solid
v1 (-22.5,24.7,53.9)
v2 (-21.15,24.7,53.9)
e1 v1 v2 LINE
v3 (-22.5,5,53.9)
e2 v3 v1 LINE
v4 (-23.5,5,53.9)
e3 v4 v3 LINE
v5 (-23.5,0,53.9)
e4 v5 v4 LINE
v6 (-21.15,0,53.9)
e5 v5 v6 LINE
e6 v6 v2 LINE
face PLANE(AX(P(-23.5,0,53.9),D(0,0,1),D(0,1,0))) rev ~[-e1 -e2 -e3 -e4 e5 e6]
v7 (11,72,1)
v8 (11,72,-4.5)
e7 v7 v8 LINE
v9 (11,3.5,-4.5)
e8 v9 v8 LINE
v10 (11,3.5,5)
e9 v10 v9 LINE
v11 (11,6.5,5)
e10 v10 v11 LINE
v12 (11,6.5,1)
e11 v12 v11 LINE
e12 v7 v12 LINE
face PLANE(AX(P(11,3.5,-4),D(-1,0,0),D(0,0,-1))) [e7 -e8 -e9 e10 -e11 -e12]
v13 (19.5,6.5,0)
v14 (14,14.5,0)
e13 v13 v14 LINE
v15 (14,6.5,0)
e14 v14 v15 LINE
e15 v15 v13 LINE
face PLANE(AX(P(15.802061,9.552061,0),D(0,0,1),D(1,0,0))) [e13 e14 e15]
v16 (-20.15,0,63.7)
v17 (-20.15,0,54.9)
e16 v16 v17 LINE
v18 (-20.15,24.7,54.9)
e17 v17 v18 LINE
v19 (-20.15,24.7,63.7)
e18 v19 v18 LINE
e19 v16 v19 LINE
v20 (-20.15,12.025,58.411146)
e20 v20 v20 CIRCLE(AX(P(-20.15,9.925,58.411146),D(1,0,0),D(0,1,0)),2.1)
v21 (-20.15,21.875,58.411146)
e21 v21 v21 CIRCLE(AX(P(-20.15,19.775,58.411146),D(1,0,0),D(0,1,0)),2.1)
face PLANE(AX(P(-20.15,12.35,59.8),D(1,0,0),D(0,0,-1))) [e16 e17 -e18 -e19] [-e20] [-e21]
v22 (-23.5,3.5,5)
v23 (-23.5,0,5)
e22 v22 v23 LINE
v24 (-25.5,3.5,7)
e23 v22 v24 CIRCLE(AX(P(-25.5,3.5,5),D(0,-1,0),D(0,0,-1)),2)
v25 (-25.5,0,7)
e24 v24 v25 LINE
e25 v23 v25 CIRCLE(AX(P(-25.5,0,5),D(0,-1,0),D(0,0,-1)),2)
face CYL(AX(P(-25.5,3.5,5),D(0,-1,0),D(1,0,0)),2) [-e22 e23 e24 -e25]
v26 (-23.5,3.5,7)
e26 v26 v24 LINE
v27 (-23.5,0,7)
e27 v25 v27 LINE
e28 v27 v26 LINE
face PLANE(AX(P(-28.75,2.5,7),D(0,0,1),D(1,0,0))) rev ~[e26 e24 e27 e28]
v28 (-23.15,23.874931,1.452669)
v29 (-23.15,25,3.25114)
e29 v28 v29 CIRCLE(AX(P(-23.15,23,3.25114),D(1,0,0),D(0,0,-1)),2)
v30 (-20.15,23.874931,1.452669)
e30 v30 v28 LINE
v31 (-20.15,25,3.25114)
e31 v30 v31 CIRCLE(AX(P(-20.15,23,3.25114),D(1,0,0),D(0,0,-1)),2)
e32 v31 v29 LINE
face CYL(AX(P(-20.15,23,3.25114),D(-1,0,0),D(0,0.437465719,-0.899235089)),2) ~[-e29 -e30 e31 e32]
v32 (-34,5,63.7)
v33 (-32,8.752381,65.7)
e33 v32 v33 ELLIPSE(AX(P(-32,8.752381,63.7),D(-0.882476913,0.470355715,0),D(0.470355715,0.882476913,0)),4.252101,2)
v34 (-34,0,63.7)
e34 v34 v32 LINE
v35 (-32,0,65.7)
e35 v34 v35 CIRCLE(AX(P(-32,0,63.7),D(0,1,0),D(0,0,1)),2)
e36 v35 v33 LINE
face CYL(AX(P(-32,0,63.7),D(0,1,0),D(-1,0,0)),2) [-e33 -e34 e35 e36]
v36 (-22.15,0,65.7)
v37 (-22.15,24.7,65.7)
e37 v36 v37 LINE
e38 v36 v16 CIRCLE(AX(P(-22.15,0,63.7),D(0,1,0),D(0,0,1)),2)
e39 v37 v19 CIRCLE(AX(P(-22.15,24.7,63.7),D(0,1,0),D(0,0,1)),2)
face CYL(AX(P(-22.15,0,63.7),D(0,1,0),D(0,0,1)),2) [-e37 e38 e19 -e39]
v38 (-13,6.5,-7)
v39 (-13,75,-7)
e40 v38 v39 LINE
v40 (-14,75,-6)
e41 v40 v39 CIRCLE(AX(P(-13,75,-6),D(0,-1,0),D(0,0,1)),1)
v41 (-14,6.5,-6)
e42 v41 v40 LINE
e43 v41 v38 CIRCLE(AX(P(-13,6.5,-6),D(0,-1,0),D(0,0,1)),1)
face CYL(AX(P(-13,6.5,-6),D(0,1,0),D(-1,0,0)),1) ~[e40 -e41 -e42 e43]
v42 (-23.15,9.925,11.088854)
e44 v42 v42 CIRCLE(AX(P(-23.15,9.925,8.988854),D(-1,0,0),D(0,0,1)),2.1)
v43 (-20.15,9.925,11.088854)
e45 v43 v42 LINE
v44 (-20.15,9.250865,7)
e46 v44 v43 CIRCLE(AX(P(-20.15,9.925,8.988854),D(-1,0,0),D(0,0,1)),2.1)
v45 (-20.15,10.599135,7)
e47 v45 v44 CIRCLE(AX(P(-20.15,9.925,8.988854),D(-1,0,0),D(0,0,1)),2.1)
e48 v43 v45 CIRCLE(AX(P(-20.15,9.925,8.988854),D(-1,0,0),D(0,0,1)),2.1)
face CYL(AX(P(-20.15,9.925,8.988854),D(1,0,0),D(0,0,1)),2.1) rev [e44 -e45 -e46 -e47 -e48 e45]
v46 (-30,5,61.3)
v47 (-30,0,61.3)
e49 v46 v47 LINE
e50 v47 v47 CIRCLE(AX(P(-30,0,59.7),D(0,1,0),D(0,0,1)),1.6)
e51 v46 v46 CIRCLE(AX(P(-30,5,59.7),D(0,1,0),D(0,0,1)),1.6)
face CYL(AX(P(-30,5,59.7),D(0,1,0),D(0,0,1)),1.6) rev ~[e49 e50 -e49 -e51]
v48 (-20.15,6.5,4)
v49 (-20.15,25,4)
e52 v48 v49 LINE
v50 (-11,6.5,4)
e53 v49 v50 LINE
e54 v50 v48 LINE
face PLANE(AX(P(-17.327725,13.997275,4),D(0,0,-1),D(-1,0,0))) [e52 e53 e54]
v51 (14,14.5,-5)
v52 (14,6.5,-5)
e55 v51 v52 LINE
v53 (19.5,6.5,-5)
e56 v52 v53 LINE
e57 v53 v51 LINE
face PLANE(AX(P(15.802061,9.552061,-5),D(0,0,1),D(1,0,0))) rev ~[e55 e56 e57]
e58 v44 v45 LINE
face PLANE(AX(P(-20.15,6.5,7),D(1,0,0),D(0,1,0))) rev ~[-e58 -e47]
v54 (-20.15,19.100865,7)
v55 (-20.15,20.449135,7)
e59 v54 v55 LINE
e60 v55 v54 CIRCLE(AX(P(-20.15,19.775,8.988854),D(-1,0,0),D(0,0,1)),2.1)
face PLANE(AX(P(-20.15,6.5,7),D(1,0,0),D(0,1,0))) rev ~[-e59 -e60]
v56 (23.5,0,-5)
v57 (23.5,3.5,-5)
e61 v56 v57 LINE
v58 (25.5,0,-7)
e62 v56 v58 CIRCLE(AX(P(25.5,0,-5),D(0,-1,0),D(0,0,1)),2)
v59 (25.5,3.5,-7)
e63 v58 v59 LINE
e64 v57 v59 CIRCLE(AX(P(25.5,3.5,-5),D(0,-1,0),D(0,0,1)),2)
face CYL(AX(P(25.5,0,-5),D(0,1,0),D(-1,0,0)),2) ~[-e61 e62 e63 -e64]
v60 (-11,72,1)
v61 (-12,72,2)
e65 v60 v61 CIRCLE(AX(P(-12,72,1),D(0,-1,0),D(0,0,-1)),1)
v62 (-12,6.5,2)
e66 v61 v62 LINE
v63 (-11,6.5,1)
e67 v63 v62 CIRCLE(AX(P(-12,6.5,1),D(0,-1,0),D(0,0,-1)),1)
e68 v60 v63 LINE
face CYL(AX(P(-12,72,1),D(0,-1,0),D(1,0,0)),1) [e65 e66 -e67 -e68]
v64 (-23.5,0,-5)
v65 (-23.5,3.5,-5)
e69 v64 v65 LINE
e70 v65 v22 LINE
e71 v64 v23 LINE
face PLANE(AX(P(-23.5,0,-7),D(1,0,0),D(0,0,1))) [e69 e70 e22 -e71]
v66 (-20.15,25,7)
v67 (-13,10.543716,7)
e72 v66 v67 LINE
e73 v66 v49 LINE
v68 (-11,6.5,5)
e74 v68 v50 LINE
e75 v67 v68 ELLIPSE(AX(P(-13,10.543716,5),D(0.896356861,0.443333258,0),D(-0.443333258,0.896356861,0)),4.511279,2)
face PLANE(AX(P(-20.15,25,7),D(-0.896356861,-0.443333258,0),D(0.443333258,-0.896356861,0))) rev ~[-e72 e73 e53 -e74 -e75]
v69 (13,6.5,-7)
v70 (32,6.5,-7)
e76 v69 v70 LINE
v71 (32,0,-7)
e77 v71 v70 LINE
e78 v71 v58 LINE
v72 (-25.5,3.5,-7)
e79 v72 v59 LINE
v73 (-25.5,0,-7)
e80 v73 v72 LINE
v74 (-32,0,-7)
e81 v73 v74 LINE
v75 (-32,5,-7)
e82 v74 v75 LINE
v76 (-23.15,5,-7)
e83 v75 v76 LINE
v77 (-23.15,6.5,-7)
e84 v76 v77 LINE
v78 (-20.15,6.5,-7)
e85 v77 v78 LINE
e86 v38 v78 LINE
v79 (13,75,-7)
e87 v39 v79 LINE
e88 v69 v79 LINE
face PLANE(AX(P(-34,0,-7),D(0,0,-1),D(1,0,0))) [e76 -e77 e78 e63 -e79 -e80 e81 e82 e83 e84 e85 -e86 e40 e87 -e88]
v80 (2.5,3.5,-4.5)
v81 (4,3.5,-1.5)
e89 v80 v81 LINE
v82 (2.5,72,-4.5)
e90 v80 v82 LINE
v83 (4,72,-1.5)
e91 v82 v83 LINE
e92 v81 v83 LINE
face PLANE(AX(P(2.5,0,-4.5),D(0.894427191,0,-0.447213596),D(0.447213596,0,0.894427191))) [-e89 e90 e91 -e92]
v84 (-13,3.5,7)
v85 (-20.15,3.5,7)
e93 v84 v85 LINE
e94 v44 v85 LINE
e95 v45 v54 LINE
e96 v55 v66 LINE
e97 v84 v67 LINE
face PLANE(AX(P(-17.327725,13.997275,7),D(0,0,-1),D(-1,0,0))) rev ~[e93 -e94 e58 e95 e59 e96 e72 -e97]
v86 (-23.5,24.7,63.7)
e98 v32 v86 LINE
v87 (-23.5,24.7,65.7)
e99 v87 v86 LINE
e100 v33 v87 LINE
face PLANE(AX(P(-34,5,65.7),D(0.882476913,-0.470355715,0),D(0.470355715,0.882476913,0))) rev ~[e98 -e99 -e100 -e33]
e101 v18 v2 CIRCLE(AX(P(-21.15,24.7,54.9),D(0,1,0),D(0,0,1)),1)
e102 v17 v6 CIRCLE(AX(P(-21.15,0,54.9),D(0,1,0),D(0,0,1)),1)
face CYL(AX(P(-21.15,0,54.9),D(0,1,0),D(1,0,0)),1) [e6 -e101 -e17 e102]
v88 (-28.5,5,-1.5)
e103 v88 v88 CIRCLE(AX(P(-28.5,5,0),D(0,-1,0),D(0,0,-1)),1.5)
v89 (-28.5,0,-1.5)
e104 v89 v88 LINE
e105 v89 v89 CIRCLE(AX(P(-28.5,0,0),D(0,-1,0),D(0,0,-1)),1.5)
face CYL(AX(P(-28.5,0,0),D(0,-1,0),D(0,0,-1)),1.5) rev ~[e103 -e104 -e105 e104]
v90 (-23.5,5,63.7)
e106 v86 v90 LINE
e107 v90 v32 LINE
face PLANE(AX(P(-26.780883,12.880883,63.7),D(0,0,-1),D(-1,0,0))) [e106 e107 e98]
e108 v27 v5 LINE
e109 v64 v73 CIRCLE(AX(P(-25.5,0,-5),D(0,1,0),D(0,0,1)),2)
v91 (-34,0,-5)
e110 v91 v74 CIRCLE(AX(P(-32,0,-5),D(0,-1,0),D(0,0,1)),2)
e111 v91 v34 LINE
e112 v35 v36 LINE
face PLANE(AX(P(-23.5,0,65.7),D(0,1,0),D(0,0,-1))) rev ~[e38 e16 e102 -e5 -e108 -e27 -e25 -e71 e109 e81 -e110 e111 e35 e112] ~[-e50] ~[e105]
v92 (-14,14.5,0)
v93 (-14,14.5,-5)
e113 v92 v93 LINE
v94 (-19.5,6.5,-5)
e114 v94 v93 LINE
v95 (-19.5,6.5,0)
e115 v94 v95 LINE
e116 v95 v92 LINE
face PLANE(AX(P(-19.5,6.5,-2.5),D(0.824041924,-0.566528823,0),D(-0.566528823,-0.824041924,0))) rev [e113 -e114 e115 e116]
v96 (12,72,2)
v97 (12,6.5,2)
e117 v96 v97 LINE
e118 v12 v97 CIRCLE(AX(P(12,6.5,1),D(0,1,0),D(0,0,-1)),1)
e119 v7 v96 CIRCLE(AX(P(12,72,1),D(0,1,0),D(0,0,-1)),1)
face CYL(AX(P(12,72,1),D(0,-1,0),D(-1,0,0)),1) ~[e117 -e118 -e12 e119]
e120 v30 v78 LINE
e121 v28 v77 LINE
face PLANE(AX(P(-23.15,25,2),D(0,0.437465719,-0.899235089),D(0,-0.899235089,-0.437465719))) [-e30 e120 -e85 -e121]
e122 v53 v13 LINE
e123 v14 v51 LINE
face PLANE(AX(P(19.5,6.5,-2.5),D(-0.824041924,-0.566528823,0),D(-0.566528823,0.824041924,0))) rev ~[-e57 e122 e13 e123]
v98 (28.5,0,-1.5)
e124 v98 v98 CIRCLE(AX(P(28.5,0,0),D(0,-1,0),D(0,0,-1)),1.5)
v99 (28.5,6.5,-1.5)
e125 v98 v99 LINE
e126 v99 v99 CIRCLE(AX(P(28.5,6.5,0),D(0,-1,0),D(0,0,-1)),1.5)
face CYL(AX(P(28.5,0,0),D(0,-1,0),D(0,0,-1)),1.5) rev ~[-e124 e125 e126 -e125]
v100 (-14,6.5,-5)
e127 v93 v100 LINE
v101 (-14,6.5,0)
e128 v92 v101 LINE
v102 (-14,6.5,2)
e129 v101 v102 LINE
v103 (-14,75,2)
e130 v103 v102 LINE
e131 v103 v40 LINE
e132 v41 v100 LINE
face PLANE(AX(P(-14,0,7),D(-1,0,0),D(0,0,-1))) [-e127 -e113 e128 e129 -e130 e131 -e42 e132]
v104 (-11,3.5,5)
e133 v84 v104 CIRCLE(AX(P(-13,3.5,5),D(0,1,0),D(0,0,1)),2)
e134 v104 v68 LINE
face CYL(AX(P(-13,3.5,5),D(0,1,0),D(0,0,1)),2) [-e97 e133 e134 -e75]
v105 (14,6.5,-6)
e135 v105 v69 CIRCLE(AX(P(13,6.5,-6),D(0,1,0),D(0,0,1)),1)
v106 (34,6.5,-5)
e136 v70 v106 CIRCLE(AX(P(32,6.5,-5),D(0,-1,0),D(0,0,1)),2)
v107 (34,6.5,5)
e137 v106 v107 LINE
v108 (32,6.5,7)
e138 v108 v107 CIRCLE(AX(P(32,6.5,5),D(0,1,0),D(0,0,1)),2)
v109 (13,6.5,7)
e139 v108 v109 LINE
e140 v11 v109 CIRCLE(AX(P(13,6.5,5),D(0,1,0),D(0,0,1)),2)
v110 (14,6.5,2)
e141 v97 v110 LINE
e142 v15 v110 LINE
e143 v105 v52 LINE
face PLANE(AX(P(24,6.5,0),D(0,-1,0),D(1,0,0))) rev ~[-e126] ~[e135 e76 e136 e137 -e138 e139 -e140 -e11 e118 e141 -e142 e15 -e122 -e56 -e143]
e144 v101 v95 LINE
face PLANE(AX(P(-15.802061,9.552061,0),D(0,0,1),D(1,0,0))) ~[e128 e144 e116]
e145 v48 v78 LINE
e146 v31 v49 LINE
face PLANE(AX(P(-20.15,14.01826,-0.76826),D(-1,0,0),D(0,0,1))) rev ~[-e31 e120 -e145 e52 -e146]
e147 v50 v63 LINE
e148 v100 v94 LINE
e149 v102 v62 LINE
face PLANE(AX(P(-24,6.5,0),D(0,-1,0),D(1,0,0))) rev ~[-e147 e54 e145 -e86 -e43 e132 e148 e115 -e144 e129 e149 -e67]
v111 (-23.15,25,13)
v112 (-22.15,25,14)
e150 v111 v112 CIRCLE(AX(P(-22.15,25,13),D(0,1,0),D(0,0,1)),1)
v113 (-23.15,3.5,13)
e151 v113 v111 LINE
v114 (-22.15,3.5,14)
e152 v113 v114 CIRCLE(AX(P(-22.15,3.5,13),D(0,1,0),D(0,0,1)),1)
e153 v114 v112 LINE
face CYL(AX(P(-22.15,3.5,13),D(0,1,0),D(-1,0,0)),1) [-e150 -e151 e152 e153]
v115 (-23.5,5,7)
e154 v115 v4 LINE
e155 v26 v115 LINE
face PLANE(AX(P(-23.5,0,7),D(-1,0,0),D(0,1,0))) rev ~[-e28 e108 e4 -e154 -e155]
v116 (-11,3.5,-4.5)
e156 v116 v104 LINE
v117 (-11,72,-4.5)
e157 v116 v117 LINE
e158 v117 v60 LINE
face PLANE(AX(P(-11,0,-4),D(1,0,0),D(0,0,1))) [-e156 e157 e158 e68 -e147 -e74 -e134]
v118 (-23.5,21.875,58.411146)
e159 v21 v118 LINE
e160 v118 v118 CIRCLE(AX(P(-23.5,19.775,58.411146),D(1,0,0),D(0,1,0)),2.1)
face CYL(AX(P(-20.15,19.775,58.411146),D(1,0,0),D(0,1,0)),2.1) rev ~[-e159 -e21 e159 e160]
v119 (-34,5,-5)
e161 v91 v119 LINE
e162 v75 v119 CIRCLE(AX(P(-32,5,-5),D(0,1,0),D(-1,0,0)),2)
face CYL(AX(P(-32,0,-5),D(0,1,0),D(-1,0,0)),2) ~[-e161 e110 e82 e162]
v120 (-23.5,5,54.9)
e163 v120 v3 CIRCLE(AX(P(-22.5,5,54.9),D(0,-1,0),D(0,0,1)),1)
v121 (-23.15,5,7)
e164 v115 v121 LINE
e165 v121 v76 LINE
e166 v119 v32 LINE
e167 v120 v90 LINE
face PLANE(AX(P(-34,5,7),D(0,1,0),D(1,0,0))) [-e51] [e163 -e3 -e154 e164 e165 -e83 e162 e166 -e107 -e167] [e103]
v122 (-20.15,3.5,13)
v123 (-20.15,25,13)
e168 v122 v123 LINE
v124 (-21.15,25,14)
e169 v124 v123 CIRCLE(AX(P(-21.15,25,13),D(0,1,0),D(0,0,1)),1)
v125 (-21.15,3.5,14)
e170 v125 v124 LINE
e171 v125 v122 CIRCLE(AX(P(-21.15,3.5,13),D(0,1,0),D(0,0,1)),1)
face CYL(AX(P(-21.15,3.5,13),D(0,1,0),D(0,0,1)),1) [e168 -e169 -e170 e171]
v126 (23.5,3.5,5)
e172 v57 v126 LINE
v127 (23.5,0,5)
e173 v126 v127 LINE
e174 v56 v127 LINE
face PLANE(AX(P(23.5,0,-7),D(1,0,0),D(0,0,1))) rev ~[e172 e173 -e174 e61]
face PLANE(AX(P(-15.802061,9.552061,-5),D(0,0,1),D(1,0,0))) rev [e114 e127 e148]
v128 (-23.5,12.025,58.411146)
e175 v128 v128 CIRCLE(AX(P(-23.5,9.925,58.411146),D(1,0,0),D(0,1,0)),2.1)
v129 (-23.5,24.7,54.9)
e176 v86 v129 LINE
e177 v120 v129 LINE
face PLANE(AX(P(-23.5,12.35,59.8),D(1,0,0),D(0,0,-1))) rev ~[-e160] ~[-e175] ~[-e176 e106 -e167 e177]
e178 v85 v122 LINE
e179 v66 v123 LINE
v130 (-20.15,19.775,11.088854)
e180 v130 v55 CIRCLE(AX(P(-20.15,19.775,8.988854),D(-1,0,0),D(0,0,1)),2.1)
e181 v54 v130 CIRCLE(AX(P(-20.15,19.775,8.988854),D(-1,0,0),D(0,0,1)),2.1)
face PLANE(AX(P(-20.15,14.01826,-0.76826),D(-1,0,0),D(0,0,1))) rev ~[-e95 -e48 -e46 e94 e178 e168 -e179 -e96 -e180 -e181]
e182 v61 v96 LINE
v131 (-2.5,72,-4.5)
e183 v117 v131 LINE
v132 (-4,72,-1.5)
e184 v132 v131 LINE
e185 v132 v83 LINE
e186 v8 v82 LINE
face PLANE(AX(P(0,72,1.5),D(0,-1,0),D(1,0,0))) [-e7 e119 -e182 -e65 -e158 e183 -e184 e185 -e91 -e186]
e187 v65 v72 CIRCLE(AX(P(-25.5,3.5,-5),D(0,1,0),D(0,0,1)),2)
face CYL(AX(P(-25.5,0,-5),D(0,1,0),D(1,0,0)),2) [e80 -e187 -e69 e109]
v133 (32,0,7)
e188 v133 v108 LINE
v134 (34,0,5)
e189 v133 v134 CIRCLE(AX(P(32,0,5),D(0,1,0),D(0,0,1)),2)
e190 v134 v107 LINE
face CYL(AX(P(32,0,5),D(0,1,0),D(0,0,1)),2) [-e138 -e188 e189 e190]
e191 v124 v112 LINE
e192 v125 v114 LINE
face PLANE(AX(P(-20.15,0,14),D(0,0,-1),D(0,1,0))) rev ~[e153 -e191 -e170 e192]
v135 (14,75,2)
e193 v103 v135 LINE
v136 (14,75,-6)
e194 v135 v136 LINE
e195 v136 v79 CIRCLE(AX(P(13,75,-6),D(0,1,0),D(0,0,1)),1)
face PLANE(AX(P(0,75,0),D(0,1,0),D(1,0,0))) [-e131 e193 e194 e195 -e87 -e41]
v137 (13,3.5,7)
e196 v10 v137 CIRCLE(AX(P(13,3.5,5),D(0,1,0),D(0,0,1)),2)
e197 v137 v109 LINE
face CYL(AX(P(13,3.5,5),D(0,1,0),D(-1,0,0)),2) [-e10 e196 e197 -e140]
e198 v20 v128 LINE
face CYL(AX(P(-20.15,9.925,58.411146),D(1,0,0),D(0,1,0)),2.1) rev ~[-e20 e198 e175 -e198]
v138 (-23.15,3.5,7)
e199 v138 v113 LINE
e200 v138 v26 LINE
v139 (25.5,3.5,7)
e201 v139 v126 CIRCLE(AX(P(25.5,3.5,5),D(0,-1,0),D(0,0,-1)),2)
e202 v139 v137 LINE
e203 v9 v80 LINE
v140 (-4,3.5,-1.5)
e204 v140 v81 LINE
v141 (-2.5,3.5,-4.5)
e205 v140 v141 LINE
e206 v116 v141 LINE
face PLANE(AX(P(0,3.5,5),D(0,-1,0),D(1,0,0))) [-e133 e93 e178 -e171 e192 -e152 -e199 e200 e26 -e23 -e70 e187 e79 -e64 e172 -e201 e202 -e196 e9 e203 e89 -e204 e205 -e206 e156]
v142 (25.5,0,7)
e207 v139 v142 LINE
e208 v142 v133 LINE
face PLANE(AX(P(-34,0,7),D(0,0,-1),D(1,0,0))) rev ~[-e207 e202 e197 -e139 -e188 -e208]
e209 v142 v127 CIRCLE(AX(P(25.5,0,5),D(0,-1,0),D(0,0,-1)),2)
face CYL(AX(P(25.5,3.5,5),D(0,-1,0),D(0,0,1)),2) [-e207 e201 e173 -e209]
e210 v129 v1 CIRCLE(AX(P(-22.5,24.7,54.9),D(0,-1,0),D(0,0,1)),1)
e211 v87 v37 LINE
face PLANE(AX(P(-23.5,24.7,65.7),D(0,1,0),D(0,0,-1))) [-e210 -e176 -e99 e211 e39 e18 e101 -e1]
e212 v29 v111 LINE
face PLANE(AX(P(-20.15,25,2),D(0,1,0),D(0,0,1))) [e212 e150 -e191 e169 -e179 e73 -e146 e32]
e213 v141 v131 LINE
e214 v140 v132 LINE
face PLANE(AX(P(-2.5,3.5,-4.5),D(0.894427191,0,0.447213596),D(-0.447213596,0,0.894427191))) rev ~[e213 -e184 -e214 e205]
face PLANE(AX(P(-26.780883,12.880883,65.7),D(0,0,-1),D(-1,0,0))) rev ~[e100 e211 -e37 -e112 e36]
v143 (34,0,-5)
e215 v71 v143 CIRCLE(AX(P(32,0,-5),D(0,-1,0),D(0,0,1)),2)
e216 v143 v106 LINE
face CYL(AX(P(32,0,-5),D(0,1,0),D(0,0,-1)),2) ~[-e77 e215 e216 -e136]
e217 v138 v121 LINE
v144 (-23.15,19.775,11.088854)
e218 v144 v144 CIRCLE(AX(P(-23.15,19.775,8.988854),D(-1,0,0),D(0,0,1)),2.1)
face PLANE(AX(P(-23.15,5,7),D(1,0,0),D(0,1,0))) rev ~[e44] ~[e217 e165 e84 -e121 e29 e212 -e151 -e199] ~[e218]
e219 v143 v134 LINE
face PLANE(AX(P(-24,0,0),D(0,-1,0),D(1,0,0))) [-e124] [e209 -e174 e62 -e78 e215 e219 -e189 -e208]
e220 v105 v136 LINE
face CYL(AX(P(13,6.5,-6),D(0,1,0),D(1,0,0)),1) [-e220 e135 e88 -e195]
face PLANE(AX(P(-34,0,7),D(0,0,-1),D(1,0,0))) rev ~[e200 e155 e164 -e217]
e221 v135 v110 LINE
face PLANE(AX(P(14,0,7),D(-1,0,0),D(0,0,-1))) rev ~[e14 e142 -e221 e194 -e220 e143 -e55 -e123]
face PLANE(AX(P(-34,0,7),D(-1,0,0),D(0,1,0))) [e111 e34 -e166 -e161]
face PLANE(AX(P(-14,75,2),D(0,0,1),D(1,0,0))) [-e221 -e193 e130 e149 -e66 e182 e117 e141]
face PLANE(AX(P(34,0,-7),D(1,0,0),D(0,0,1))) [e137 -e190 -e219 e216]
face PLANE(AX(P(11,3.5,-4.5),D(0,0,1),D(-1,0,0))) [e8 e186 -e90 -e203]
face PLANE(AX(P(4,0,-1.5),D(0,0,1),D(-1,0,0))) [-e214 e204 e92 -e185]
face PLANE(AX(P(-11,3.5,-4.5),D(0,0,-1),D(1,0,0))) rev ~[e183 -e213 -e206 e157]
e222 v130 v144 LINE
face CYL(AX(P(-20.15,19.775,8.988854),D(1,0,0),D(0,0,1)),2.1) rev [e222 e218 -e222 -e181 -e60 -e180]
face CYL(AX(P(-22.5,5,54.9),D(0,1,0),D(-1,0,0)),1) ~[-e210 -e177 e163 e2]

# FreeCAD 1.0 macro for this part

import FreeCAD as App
import Part
import Sketcher


def edges_at(feature, points):
    """Names of the edges that pass closest to the given points."""
    edges = feature.Shape.Edges
    near = lambda p: min(range(len(edges)), key=lambda i: edges[i].distToShape(Part.Vertex(*p))[0])
    return sorted({f"Edge{near(p) + 1}" for p in points})

doc = App.newDocument("Part")
body = doc.addObject("PartDesign::Body", "Body")

# Sketch on XZ plane
sketch1 = doc.addObject("Sketcher::SketchObject", "Sketch")
body.addObject(sketch1)
sketch1.AttachmentSupport = (doc.XZ_Plane, [""])
sketch1.MapMode = "FlatFace"
sketch1.addGeometry([
    Part.LineSegment(App.Vector(-14, -7, 0), App.Vector(-14, 7, 0)),  # 0
    Part.LineSegment(App.Vector(-14, 7, 0), App.Vector(14, 7, 0)),  # 1
    Part.LineSegment(App.Vector(14, 7, 0), App.Vector(14, -7, 0)),  # 2
    Part.LineSegment(App.Vector(14, -7, 0), App.Vector(-14, -7, 0)),  # 3
    Part.LineSegment(App.Vector(11, 4, 0), App.Vector(-11, 4, 0)),  # 4
    Part.LineSegment(App.Vector(-11, 4, 0), App.Vector(-11, -4, 0)),  # 5
    Part.LineSegment(App.Vector(-11, -4, 0), App.Vector(11, -4, 0)),  # 6
    Part.LineSegment(App.Vector(11, -4, 0), App.Vector(11, 4, 0)),  # 7
], False)
sketch1.addConstraint([
    Sketcher.Constraint("Coincident", 0, 2, 1, 1),
    Sketcher.Constraint("Coincident", 1, 2, 2, 1),
    Sketcher.Constraint("Coincident", 2, 2, 3, 1),
    Sketcher.Constraint("Coincident", 3, 2, 0, 1),
    Sketcher.Constraint("Coincident", 4, 2, 5, 1),
    Sketcher.Constraint("Coincident", 5, 2, 6, 1),
    Sketcher.Constraint("Coincident", 6, 2, 7, 1),
    Sketcher.Constraint("Coincident", 7, 2, 4, 1),
    Sketcher.Constraint("Vertical", 0),
    Sketcher.Constraint("Horizontal", 1),
    Sketcher.Constraint("Vertical", 2),
    Sketcher.Constraint("Horizontal", 3),
    Sketcher.Constraint("Horizontal", 4),
    Sketcher.Constraint("Vertical", 5),
    Sketcher.Constraint("Horizontal", 6),
    Sketcher.Constraint("Vertical", 7),
    Sketcher.Constraint("Symmetric", 0, 2, 2, 2, -1, 1),
    Sketcher.Constraint("Symmetric", 4, 2, 6, 2, -1, 1),
    Sketcher.Constraint("DistanceX", 1, 1, 1, 2, 28.0),
    Sketcher.Constraint("DistanceX", 4, 2, 4, 1, 22.0),
    Sketcher.Constraint("DistanceY", 0, 1, 0, 2, 14.0),
    Sketcher.Constraint("DistanceY", 5, 2, 5, 1, 8.0),
])
pad1 = doc.addObject("PartDesign::Pad", "Pad")
body.addObject(pad1)
pad1.Profile = sketch1
pad1.Length = 75
pad1.Reversed = True

# Sketch on XZ plane
sketch2 = doc.addObject("Sketcher::SketchObject", "Sketch001")
body.addObject(sketch2)
sketch2.AttachmentSupport = (doc.XZ_Plane, [""])
sketch2.MapMode = "FlatFace"
sketch2.AttachmentOffset = App.Placement(App.Vector(0, 0, -75), App.Rotation())
sketch2.addGeometry([
    Part.LineSegment(App.Vector(-11, -4, 0), App.Vector(-11, 4, 0)),
    Part.LineSegment(App.Vector(-11, 4, 0), App.Vector(11, 4, 0)),
    Part.LineSegment(App.Vector(11, 4, 0), App.Vector(11, -4, 0)),
    Part.LineSegment(App.Vector(11, -4, 0), App.Vector(-11, -4, 0)),
], False)
sketch2.addConstraint([
    Sketcher.Constraint("Coincident", 0, 2, 1, 1),
    Sketcher.Constraint("Coincident", 1, 2, 2, 1),
    Sketcher.Constraint("Coincident", 2, 2, 3, 1),
    Sketcher.Constraint("Coincident", 3, 2, 0, 1),
    Sketcher.Constraint("Vertical", 0),
    Sketcher.Constraint("Horizontal", 1),
    Sketcher.Constraint("Vertical", 2),
    Sketcher.Constraint("Horizontal", 3),
    Sketcher.Constraint("Symmetric", 0, 2, 2, 2, -1, 1),
    Sketcher.Constraint("DistanceX", 1, 1, 1, 2, 22.0),
    Sketcher.Constraint("DistanceY", 0, 1, 0, 2, 8.0),
])
pad2 = doc.addObject("PartDesign::Pad", "Pad001")
body.addObject(pad2)
pad2.Profile = sketch2
pad2.Length = 3

# Sketch on XZ plane
sketch3 = doc.addObject("Sketcher::SketchObject", "Sketch002")
body.addObject(sketch3)
sketch3.AttachmentSupport = (doc.XZ_Plane, [""])
sketch3.MapMode = "FlatFace"
sketch3.addGeometry([
    Part.LineSegment(App.Vector(-11, 7, 0), App.Vector(-11, -4, 0)),
    Part.LineSegment(App.Vector(-11, -4, 0), App.Vector(11, -4, 0)),
    Part.LineSegment(App.Vector(11, -4, 0), App.Vector(11, 7, 0)),
    Part.LineSegment(App.Vector(11, 7, 0), App.Vector(-11, 7, 0)),
], False)
sketch3.addConstraint([
    Sketcher.Constraint("Coincident", 0, 2, 1, 1),
    Sketcher.Constraint("Coincident", 1, 2, 2, 1),
    Sketcher.Constraint("Coincident", 2, 2, 3, 1),
    Sketcher.Constraint("Coincident", 3, 2, 0, 1),
    Sketcher.Constraint("Vertical", 0),
    Sketcher.Constraint("Horizontal", 1),
    Sketcher.Constraint("Vertical", 2),
    Sketcher.Constraint("Horizontal", 3),
    Sketcher.Constraint("DistanceX", 1, 1, 1, 2, 22.0),
    Sketcher.Constraint("DistanceY", 0, 2, 0, 1, 11.0),
    Sketcher.Constraint("DistanceX", 0, 2, -1, 1, 11.0),
    Sketcher.Constraint("DistanceY", 0, 2, -1, 1, 4.0),
])
pocket1 = doc.addObject("PartDesign::Pocket", "Pocket")
body.addObject(pocket1)
pocket1.Profile = sketch3
pocket1.Length = 72

# Sketch on XZ plane
sketch4 = doc.addObject("Sketcher::SketchObject", "Sketch003")
body.addObject(sketch4)
sketch4.AttachmentSupport = (doc.XZ_Plane, [""])
sketch4.MapMode = "FlatFace"
sketch4.addGeometry([
    Part.LineSegment(App.Vector(-34, 7, 0), App.Vector(-34, -7, 0)),  # 0
    Part.LineSegment(App.Vector(-34, -7, 0), App.Vector(-14, -7, 0)),  # 1
    Part.LineSegment(App.Vector(-14, -7, 0), App.Vector(-14, 7, 0)),  # 2
    Part.LineSegment(App.Vector(-14, 7, 0), App.Vector(-34, 7, 0)),  # 3
    Part.LineSegment(App.Vector(14, 7, 0), App.Vector(14, -7, 0)),  # 4
    Part.LineSegment(App.Vector(14, -7, 0), App.Vector(34, -7, 0)),  # 5
    Part.LineSegment(App.Vector(34, -7, 0), App.Vector(34, 7, 0)),  # 6
    Part.LineSegment(App.Vector(34, 7, 0), App.Vector(14, 7, 0)),  # 7
], False)
sketch4.addConstraint([
    Sketcher.Constraint("Coincident", 0, 2, 1, 1),
    Sketcher.Constraint("Coincident", 1, 2, 2, 1),
    Sketcher.Constraint("Coincident", 2, 2, 3, 1),
    Sketcher.Constraint("Coincident", 3, 2, 0, 1),
    Sketcher.Constraint("Coincident", 4, 2, 5, 1),
    Sketcher.Constraint("Coincident", 5, 2, 6, 1),
    Sketcher.Constraint("Coincident", 6, 2, 7, 1),
    Sketcher.Constraint("Coincident", 7, 2, 4, 1),
    Sketcher.Constraint("Vertical", 0),
    Sketcher.Constraint("Horizontal", 1),
    Sketcher.Constraint("Vertical", 2),
    Sketcher.Constraint("Horizontal", 3),
    Sketcher.Constraint("Vertical", 4),
    Sketcher.Constraint("Horizontal", 5),
    Sketcher.Constraint("Vertical", 6),
    Sketcher.Constraint("Horizontal", 7),
    Sketcher.Constraint("Symmetric", 2, 2, 4, 2, -1, 1),
    Sketcher.Constraint("Symmetric", 0, 2, 6, 2, -1, 1),
    Sketcher.Constraint("Horizontal", 1, 2, 4, 2),
    Sketcher.Constraint("DistanceX", 1, 1, 1, 2, 20.0),
    Sketcher.Constraint("DistanceY", 0, 2, 0, 1, 14.0),
    Sketcher.Constraint("DistanceX", 0, 2, -1, 1, 34.0),
])
pad3 = doc.addObject("PartDesign::Pad", "Pad002")
body.addObject(pad3)
pad3.Profile = sketch4
pad3.Length = 6.5
pad3.Reversed = True

# Sketch on XZ plane
sketch5 = doc.addObject("Sketcher::SketchObject", "Sketch004")
body.addObject(sketch5)
sketch5.AttachmentSupport = (doc.XZ_Plane, [""])
sketch5.MapMode = "FlatFace"
sketch5.addGeometry([
    Part.Circle(App.Vector(-28.5, 0, 0), App.Vector(0, 0, 1), 1.5),
    Part.Circle(App.Vector(28.5, 0, 0), App.Vector(0, 0, 1), 1.5),
], False)
sketch5.addConstraint([
    Sketcher.Constraint("Equal", 0, 1),
    Sketcher.Constraint("Symmetric", 0, 3, 1, 3, -1, 1),
    Sketcher.Constraint("PointOnObject", 0, 3, -1),
    Sketcher.Constraint("Diameter", 0, 3.0),
    Sketcher.Constraint("DistanceX", 0, 3, 1, 3, 57.0),
])
pocket2 = doc.addObject("PartDesign::Pocket", "Pocket001")
body.addObject(pocket2)
pocket2.Profile = sketch5
pocket2.Type = "ThroughAll"
doc.recompute()

fillet = doc.addObject("PartDesign::Fillet", "Fillet")
body.addObject(fillet)
fillet.Base = (pocket2, edges_at(pocket2, [(-34, 3.25, -7), (34, 3.25, 7), (34, 3.25, -7)]))
fillet.Radius = 2

# Sketch on XZ plane
sketch6 = doc.addObject("Sketcher::SketchObject", "Sketch005")
body.addObject(sketch6)
sketch6.AttachmentSupport = (doc.XZ_Plane, [""])
sketch6.MapMode = "FlatFace"
sketch6.addGeometry([
    Part.LineSegment(App.Vector(-2.5, -4.5, 0), App.Vector(2.5, -4.5, 0)),
    Part.LineSegment(App.Vector(2.5, -4.5, 0), App.Vector(4, -1.5, 0)),
    Part.LineSegment(App.Vector(4, -1.5, 0), App.Vector(-4, -1.5, 0)),
    Part.LineSegment(App.Vector(-4, -1.5, 0), App.Vector(-2.5, -4.5, 0)),
], False)
sketch6.addConstraint([
    Sketcher.Constraint("Coincident", 0, 2, 1, 1),
    Sketcher.Constraint("Coincident", 1, 2, 2, 1),
    Sketcher.Constraint("Coincident", 2, 2, 3, 1),
    Sketcher.Constraint("Coincident", 3, 2, 0, 1),
    Sketcher.Constraint("Horizontal", 0),
    Sketcher.Constraint("Horizontal", 2),
    Sketcher.Constraint("Equal", 1, 3),
    Sketcher.Constraint("DistanceX", 0, 1, 0, 2, 5.0),
    Sketcher.Constraint("DistanceX", 2, 2, 2, 1, 8.0),
    Sketcher.Constraint("DistanceX", -1, 1, 1, 2, 4.0),
    Sketcher.Constraint("DistanceY", 0, 2, 1, 2, 3.0),
    Sketcher.Constraint("DistanceY", 0, 2, -1, 1, 4.5),
])
pad4 = doc.addObject("PartDesign::Pad", "Pad003")
body.addObject(pad4)
pad4.Profile = sketch6
pad4.Type = "UpToFirst"
pad4.Reversed = True

# Sketch on XZ plane
sketch7 = doc.addObject("Sketcher::SketchObject", "Sketch006")
body.addObject(sketch7)
sketch7.AttachmentSupport = (doc.XZ_Plane, [""])
sketch7.MapMode = "FlatFace"
sketch7.AttachmentOffset = App.Placement(App.Vector(0, 0, -75), App.Rotation())
sketch7.addGeometry([
    Part.LineSegment(App.Vector(-14, 2, 0), App.Vector(-14, 7, 0)),
    Part.LineSegment(App.Vector(-14, 7, 0), App.Vector(14, 7, 0)),
    Part.LineSegment(App.Vector(14, 7, 0), App.Vector(14, 2, 0)),
    Part.LineSegment(App.Vector(14, 2, 0), App.Vector(-14, 2, 0)),
], False)
sketch7.addConstraint([
    Sketcher.Constraint("Coincident", 0, 2, 1, 1),
    Sketcher.Constraint("Coincident", 1, 2, 2, 1),
    Sketcher.Constraint("Coincident", 2, 2, 3, 1),
    Sketcher.Constraint("Coincident", 3, 2, 0, 1),
    Sketcher.Constraint("Vertical", 0),
    Sketcher.Constraint("Horizontal", 1),
    Sketcher.Constraint("Vertical", 2),
    Sketcher.Constraint("Horizontal", 3),
    Sketcher.Constraint("DistanceX", 1, 1, 1, 2, 28.0),
    Sketcher.Constraint("DistanceY", 0, 1, 0, 2, 5.0),
    Sketcher.Constraint("DistanceX", 0, 2, -1, 1, 14.0),
    Sketcher.Constraint("DistanceY", -1, 1, 0, 2, 7.0),
])
pocket3 = doc.addObject("PartDesign::Pocket", "Pocket002")
body.addObject(pocket3)
pocket3.Profile = sketch7
pocket3.Length = 68.5
pocket3.Reversed = True
doc.recompute()

fillet2 = doc.addObject("PartDesign::Fillet", "Fillet001")
body.addObject(fillet2)
fillet2.Base = (pocket3, edges_at(pocket3, [
    (11, 39.25, 2),
    (-11, 39.25, 2),
    (-14, 40.75, -7),
    (14, 40.75, -7),
]))
fillet2.Radius = 1

# Sketch on XY plane
sketch8 = doc.addObject("Sketcher::SketchObject", "Sketch007")
body.addObject(sketch8)
sketch8.AttachmentSupport = (doc.XY_Plane, [""])
sketch8.MapMode = "FlatFace"
sketch8.AttachmentOffset = App.Placement(App.Vector(0, 0, -2.5), App.Rotation())
sketch8.addGeometry([
    Part.LineSegment(App.Vector(20, 6, 0), App.Vector(14, 6, 0)),
    Part.LineSegment(App.Vector(14, 6, 0), App.Vector(14, 14, 0)),
    Part.LineSegment(App.Vector(14, 14, 0), App.Vector(20, 6, 0)),
], False)
sketch8.addConstraint([
    Sketcher.Constraint("Coincident", 0, 2, 1, 1),
    Sketcher.Constraint("Coincident", 1, 2, 2, 1),
    Sketcher.Constraint("Coincident", 2, 2, 0, 1),
    Sketcher.Constraint("Horizontal", 0),
    Sketcher.Constraint("Vertical", 1),
    Sketcher.Constraint("DistanceY", 1, 1, 1, 2, 8.0),
    Sketcher.Constraint("DistanceX", 0, 2, 0, 1, 5.5),
    Sketcher.Constraint("DistanceX", -1, 1, 0, 2, 14.0),
    Sketcher.Constraint("DistanceY", -1, 1, 0, 2, 6.5),
])
pad5 = doc.addObject("PartDesign::Pad", "Pad004")
body.addObject(pad5)
pad5.Profile = sketch8
pad5.Length = 5
pad5.Midplane = True
doc.recompute()

mirrored = doc.addObject("PartDesign::Mirrored", "Mirrored")
body.addObject(mirrored)
mirrored.Originals = [pad5]
mirrored.MirrorPlane = (doc.YZ_Plane, [""])
body.Tip = mirrored

# Sketch on YZ plane
sketch9 = doc.addObject("Sketcher::SketchObject", "Sketch008")
body.addObject(sketch9)
sketch9.AttachmentSupport = (doc.YZ_Plane, [""])
sketch9.MapMode = "FlatFace"
sketch9.AttachmentOffset = App.Placement(App.Vector(0, 0, -20.15), App.Rotation())
sketch9.addGeometry([
    Part.LineSegment(App.Vector(25, 2, 0), App.Vector(0, 2, 0)),  # 0
    Part.LineSegment(App.Vector(0, 2, 0), App.Vector(0, 14, 0)),  # 1
    Part.LineSegment(App.Vector(0, 14, 0), App.Vector(25, 14, 0)),  # 2
    Part.LineSegment(App.Vector(25, 14, 0), App.Vector(25, 2, 0)),  # 3
    Part.Circle(App.Vector(9.9, 9, 0), App.Vector(0, 0, 1), 2.1),  # 4
    Part.Circle(App.Vector(19.8, 9, 0), App.Vector(0, 0, 1), 2.1),  # 5
], False)
sketch9.addConstraint([
    Sketcher.Constraint("Coincident", 0, 2, 1, 1),
    Sketcher.Constraint("Coincident", 1, 2, 2, 1),
    Sketcher.Constraint("Coincident", 2, 2, 3, 1),
    Sketcher.Constraint("Coincident", 3, 2, 0, 1),
    Sketcher.Constraint("Horizontal", 0),
    Sketcher.Constraint("Vertical", 1),
    Sketcher.Constraint("Horizontal", 2),
    Sketcher.Constraint("Vertical", 3),
    Sketcher.Constraint("Equal", 4, 5),
    Sketcher.Constraint("PointOnObject", 0, 2, -2),
    Sketcher.Constraint("Horizontal", 4, 3, 5, 3),
    Sketcher.Constraint("Diameter", 4, 4.2),
    Sketcher.Constraint("DistanceX", 0, 2, 0, 1, 25.0),
    Sketcher.Constraint("DistanceY", 1, 1, 1, 2, 12.0),
    Sketcher.Constraint("DistanceY", -1, 1, 0, 2, 2.0),
    Sketcher.Constraint("DistanceX", 4, 3, 5, 3, 9.85),
    Sketcher.Constraint("DistanceX", -1, 1, 4, 3, 9.925),
    Sketcher.Constraint("DistanceY", -1, 1, 4, 3, 8.988854),
])
pad6 = doc.addObject("PartDesign::Pad", "Pad005")
body.addObject(pad6)
pad6.Profile = sketch9
pad6.Length = 3
pad6.Reversed = True

# Sketch on YZ plane
sketch10 = doc.addObject("Sketcher::SketchObject", "Sketch009")
body.addObject(sketch10)
sketch10.AttachmentSupport = (doc.YZ_Plane, [""])
sketch10.MapMode = "FlatFace"
sketch10.AttachmentOffset = App.Placement(App.Vector(0, 0, -23.15), App.Rotation())
sketch10.addGeometry([
    Part.LineSegment(App.Vector(25, 2, 0), App.Vector(6, -7, 0)),
    Part.LineSegment(App.Vector(6, -7, 0), App.Vector(6, 2, 0)),
    Part.LineSegment(App.Vector(6, 2, 0), App.Vector(25, 2, 0)),
], False)
sketch10.addConstraint([
    Sketcher.Constraint("Coincident", 0, 2, 1, 1),
    Sketcher.Constraint("Coincident", 1, 2, 2, 1),
    Sketcher.Constraint("Coincident", 2, 2, 0, 1),
    Sketcher.Constraint("Vertical", 1),
    Sketcher.Constraint("Horizontal", 2),
    Sketcher.Constraint("DistanceY", 1, 1, 1, 2, 9.0),
    Sketcher.Constraint("DistanceX", 2, 1, 2, 2, 18.5),
    Sketcher.Constraint("DistanceY", 0, 2, -1, 1, 7.0),
    Sketcher.Constraint("DistanceX", -1, 1, 2, 2, 25.0),
])
pad7 = doc.addObject("PartDesign::Pad", "Pad006")
body.addObject(pad7)
pad7.Profile = sketch10
pad7.Length = 3

# Sketch on XY plane
sketch11 = doc.addObject("Sketcher::SketchObject", "Sketch010")
body.addObject(sketch11)
sketch11.AttachmentSupport = (doc.XY_Plane, [""])
sketch11.MapMode = "FlatFace"
sketch11.AttachmentOffset = App.Placement(App.Vector(0, 0, 7), App.Rotation())
sketch11.addGeometry([
    Part.LineSegment(App.Vector(-20, 25, 0), App.Vector(-20, 6, 0)),
    Part.LineSegment(App.Vector(-20, 6, 0), App.Vector(-11, 6, 0)),
    Part.LineSegment(App.Vector(-11, 6, 0), App.Vector(-20, 25, 0)),
], False)
sketch11.addConstraint([
    Sketcher.Constraint("Coincident", 0, 2, 1, 1),
    Sketcher.Constraint("Coincident", 1, 2, 2, 1),
    Sketcher.Constraint("Coincident", 2, 2, 0, 1),
    Sketcher.Constraint("Vertical", 0),
    Sketcher.Constraint("Horizontal", 1),
    Sketcher.Constraint("DistanceY", 0, 2, 0, 1, 18.5),
    Sketcher.Constraint("DistanceX", 1, 2, -1, 1, 11.0),
    Sketcher.Constraint("DistanceY", -1, 1, 2, 2, 25.0),
    Sketcher.Constraint("DistanceX", 1, 1, 1, 2, 9.15),
])
pad8 = doc.addObject("PartDesign::Pad", "Pad007")
body.addObject(pad8)
pad8.Profile = sketch11
pad8.Length = 3
pad8.Reversed = True

# Sketch on XZ plane
sketch12 = doc.addObject("Sketcher::SketchObject", "Sketch011")
body.addObject(sketch12)
sketch12.AttachmentSupport = (doc.XZ_Plane, [""])
sketch12.MapMode = "FlatFace"
sketch12.addGeometry([
    Part.LineSegment(App.Vector(-24, 17, 0), App.Vector(-24, -7, 0)),
    Part.LineSegment(App.Vector(-24, -7, 0), App.Vector(24, -7, 0)),
    Part.LineSegment(App.Vector(24, -7, 0), App.Vector(24, 17, 0)),
    Part.LineSegment(App.Vector(24, 17, 0), App.Vector(-24, 17, 0)),
], False)
sketch12.addConstraint([
    Sketcher.Constraint("Coincident", 0, 2, 1, 1),
    Sketcher.Constraint("Coincident", 1, 2, 2, 1),
    Sketcher.Constraint("Coincident", 2, 2, 3, 1),
    Sketcher.Constraint("Coincident", 3, 2, 0, 1),
    Sketcher.Constraint("Vertical", 0),
    Sketcher.Constraint("Horizontal", 1),
    Sketcher.Constraint("Vertical", 2),
    Sketcher.Constraint("Horizontal", 3),
    Sketcher.Constraint("DistanceX", 1, 1, 1, 2, 47.0),
    Sketcher.Constraint("DistanceY", 0, 2, 0, 1, 24.0),
    Sketcher.Constraint("DistanceY", 0, 2, -1, 1, 7.0),
    Sketcher.Constraint("DistanceX", 0, 2, -1, 1, 23.5),
])
pocket4 = doc.addObject("PartDesign::Pocket", "Pocket003")
body.addObject(pocket4)
pocket4.Profile = sketch12
pocket4.Length = 3.5
doc.recompute()

fillet3 = doc.addObject("PartDesign::Fillet", "Fillet002")
body.addObject(fillet3)
fillet3.Base = (pocket4, edges_at(pocket4, [
    (-11, 5, 7),
    (11, 5, 7),
    (-23.5, 1.75, 7),
    (-23.5, 1.75, -7),
    (23.5, 1.75, 7),
    (23.5, 1.75, -7),
]))
fillet3.Radius = 2
doc.recompute()

fillet4 = doc.addObject("PartDesign::Fillet", "Fillet003")
body.addObject(fillet4)
fillet4.Base = (fillet3, edges_at(fillet3, [(-21.65, 25, 2)]))
fillet4.Radius = 2

# Sketch on XY plane
sketch13 = doc.addObject("Sketcher::SketchObject", "Sketch012")
body.addObject(sketch13)
sketch13.AttachmentSupport = (doc.XY_Plane, [""])
sketch13.MapMode = "FlatFace"
sketch13.AttachmentOffset = App.Placement(App.Vector(0, 0, 7), App.Rotation())
sketch13.addGeometry([
    Part.LineSegment(App.Vector(-34, 5, 0), App.Vector(-34, 0, 0)),
    Part.LineSegment(App.Vector(-34, 0, 0), App.Vector(-24, 0, 0)),
    Part.LineSegment(App.Vector(-24, 0, 0), App.Vector(-24, 5, 0)),
    Part.LineSegment(App.Vector(-24, 5, 0), App.Vector(-34, 5, 0)),
], False)
sketch13.addConstraint([
    Sketcher.Constraint("Coincident", 0, 2, 1, 1),
    Sketcher.Constraint("Coincident", 1, 2, 2, 1),
    Sketcher.Constraint("Coincident", 2, 2, 3, 1),
    Sketcher.Constraint("Coincident", 3, 2, 0, 1),
    Sketcher.Constraint("Vertical", 0),
    Sketcher.Constraint("Horizontal", 1),
    Sketcher.Constraint("Vertical", 2),
    Sketcher.Constraint("Horizontal", 3),
    Sketcher.Constraint("PointOnObject", 0, 2, -1),
    Sketcher.Constraint("DistanceY", 0, 2, 0, 1, 5.0),
    Sketcher.Constraint("DistanceX", 1, 1, 1, 2, 10.5),
    Sketcher.Constraint("DistanceX", 0, 2, -1, 1, 34.0),
])
pad9 = doc.addObject("PartDesign::Pad", "Pad008")
body.addObject(pad9)
pad9.Profile = sketch13
pad9.Length = 58.7

# Sketch on YZ plane
sketch14 = doc.addObject("Sketcher::SketchObject", "Sketch013")
body.addObject(sketch14)
sketch14.AttachmentSupport = (doc.YZ_Plane, [""])
sketch14.MapMode = "FlatFace"
sketch14.AttachmentOffset = App.Placement(App.Vector(0, 0, -23.5), App.Rotation())
sketch14.addGeometry([
    Part.LineSegment(App.Vector(25, 66, 0), App.Vector(0, 66, 0)),
    Part.LineSegment(App.Vector(0, 66, 0), App.Vector(0, 54, 0)),
    Part.LineSegment(App.Vector(0, 54, 0), App.Vector(25, 54, 0)),
    Part.LineSegment(App.Vector(25, 54, 0), App.Vector(25, 66, 0)),
], False)
sketch14.addConstraint([
    Sketcher.Constraint("Coincident", 0, 2, 1, 1),
    Sketcher.Constraint("Coincident", 1, 2, 2, 1),
    Sketcher.Constraint("Coincident", 2, 2, 3, 1),
    Sketcher.Constraint("Coincident", 3, 2, 0, 1),
    Sketcher.Constraint("Horizontal", 0),
    Sketcher.Constraint("Vertical", 1),
    Sketcher.Constraint("Horizontal", 2),
    Sketcher.Constraint("Vertical", 3),
    Sketcher.Constraint("PointOnObject", 0, 2, -2),
    Sketcher.Constraint("DistanceX", 0, 2, 0, 1, 24.7),
    Sketcher.Constraint("DistanceY", 1, 2, 1, 1, 11.8),
    Sketcher.Constraint("DistanceY", -1, 1, 0, 2, 65.7),
])
pad10 = doc.addObject("PartDesign::Pad", "Pad009")
body.addObject(pad10)
pad10.Profile = sketch14
pad10.Length = 3.35

# Sketch on YZ plane
sketch15 = doc.addObject("Sketcher::SketchObject", "Sketch014")
body.addObject(sketch15)
sketch15.AttachmentSupport = (doc.YZ_Plane, [""])
sketch15.MapMode = "FlatFace"
sketch15.AttachmentOffset = App.Placement(App.Vector(0, 0, -20.15), App.Rotation())
sketch15.addGeometry(Part.Circle(App.Vector(9.9, 58.4, 0), App.Vector(0, 0, 1), 2.1), False)
sketch15.addConstraint([
    Sketcher.Constraint("Diameter", 0, 4.2),
    Sketcher.Constraint("DistanceX", -1, 1, 0, 3, 9.925),
    Sketcher.Constraint("DistanceY", -1, 1, 0, 3, 58.411146),
])
pocket5 = doc.addObject("PartDesign::Pocket", "Pocket004")
body.addObject(pocket5)
pocket5.Profile = sketch15
pocket5.Type = "UpToFirst"

# Sketch on YZ plane
sketch16 = doc.addObject("Sketcher::SketchObject", "Sketch015")
body.addObject(sketch16)
sketch16.AttachmentSupport = (doc.YZ_Plane, [""])
sketch16.MapMode = "FlatFace"
sketch16.AttachmentOffset = App.Placement(App.Vector(0, 0, -20.15), App.Rotation())
sketch16.addGeometry(Part.Circle(App.Vector(19.8, 58.4, 0), App.Vector(0, 0, 1), 2.1), False)
sketch16.addConstraint([
    Sketcher.Constraint("Diameter", 0, 4.2),
    Sketcher.Constraint("DistanceX", -1, 1, 0, 3, 19.775),
    Sketcher.Constraint("DistanceY", -1, 1, 0, 3, 58.411146),
])
pocket6 = doc.addObject("PartDesign::Pocket", "Pocket005")
body.addObject(pocket6)
pocket6.Profile = sketch16
pocket6.Type = "UpToFirst"

# Sketch on XZ plane
sketch17 = doc.addObject("Sketcher::SketchObject", "Sketch016")
body.addObject(sketch17)
sketch17.AttachmentSupport = (doc.XZ_Plane, [""])
sketch17.MapMode = "FlatFace"
sketch17.AttachmentOffset = App.Placement(App.Vector(0, 0, -5), App.Rotation())
sketch17.addGeometry(Part.Circle(App.Vector(-30, 59.7, 0), App.Vector(0, 0, 1), 1.6), False)
sketch17.addConstraint([
    Sketcher.Constraint("Diameter", 0, 3.2),
    Sketcher.Constraint("DistanceX", 0, 3, -1, 1, 30.0),
    Sketcher.Constraint("DistanceY", -1, 1, 0, 3, 59.7),
])
pocket7 = doc.addObject("PartDesign::Pocket", "Pocket006")
body.addObject(pocket7)
pocket7.Profile = sketch17
pocket7.Type = "UpToFirst"
pocket7.Reversed = True

# Sketch on XY plane
sketch18 = doc.addObject("Sketcher::SketchObject", "Sketch017")
body.addObject(sketch18)
sketch18.AttachmentSupport = (doc.XY_Plane, [""])
sketch18.MapMode = "FlatFace"
sketch18.AttachmentOffset = App.Placement(App.Vector(0, 0, 7), App.Rotation())
sketch18.addGeometry([
    Part.LineSegment(App.Vector(-34, 6.5, 0), App.Vector(-34, 5, 0)),
    Part.LineSegment(App.Vector(-34, 5, 0), App.Vector(-23.1, 5, 0)),
    Part.LineSegment(App.Vector(-23.1, 5, 0), App.Vector(-23.1, 6.5, 0)),
    Part.LineSegment(App.Vector(-23.1, 6.5, 0), App.Vector(-34, 6.5, 0)),
], False)
sketch18.addConstraint([
    Sketcher.Constraint("Coincident", 0, 2, 1, 1),
    Sketcher.Constraint("Coincident", 1, 2, 2, 1),
    Sketcher.Constraint("Coincident", 2, 2, 3, 1),
    Sketcher.Constraint("Coincident", 3, 2, 0, 1),
    Sketcher.Constraint("Vertical", 0),
    Sketcher.Constraint("Horizontal", 1),
    Sketcher.Constraint("Vertical", 2),
    Sketcher.Constraint("Horizontal", 3),
    Sketcher.Constraint("DistanceY", 0, 2, 0, 1, 1.5),
    Sketcher.Constraint("DistanceX", 0, 2, -1, 1, 34.0),
    Sketcher.Constraint("DistanceY", -1, 1, 0, 2, 5.0),
    Sketcher.Constraint("DistanceX", 1, 1, 1, 2, 10.85),
])
pocket8 = doc.addObject("PartDesign::Pocket", "Pocket007")
body.addObject(pocket8)
pocket8.Profile = sketch18
pocket8.Type = "UpToFirst"

# Sketch on XY plane
sketch19 = doc.addObject("Sketcher::SketchObject", "Sketch018")
body.addObject(sketch19)
sketch19.AttachmentSupport = (doc.XY_Plane, [""])
sketch19.MapMode = "FlatFace"
sketch19.AttachmentOffset = App.Placement(App.Vector(0, 0, 65.7), App.Rotation())
sketch19.addGeometry([
    Part.LineSegment(App.Vector(-34, 5, 0), App.Vector(-24, 5, 0)),
    Part.LineSegment(App.Vector(-24, 5, 0), App.Vector(-24, 25, 0)),
    Part.LineSegment(App.Vector(-24, 25, 0), App.Vector(-34, 5, 0)),
], False)
sketch19.addConstraint([
    Sketcher.Constraint("Coincident", 0, 2, 1, 1),
    Sketcher.Constraint("Coincident", 1, 2, 2, 1),
    Sketcher.Constraint("Coincident", 2, 2, 0, 1),
    Sketcher.Constraint("Horizontal", 0),
    Sketcher.Constraint("Vertical", 1),
    Sketcher.Constraint("DistanceX", 0, 1, 0, 2, 10.5),
    Sketcher.Constraint("DistanceY", 1, 1, 1, 2, 19.7),
    Sketcher.Constraint("DistanceY", -1, 1, 0, 2, 5.0),
    Sketcher.Constraint("DistanceX", 2, 2, -1, 1, 34.0),
])
pad11 = doc.addObject("PartDesign::Pad", "Pad010")
body.addObject(pad11)
pad11.Profile = sketch19
pad11.Length = 2
pad11.Reversed = True
doc.recompute()

fillet5 = doc.addObject("PartDesign::Fillet", "Fillet004")
body.addObject(fillet5)
fillet5.Base = (pad11, edges_at(pad11, [(-34, 2.5, 65.7), (-20.15, 12.35, 65.7)]))
fillet5.Radius = 2
doc.recompute()

fillet6 = doc.addObject("PartDesign::Fillet", "Fillet005")
body.addObject(fillet6)
fillet6.Base = (fillet5, edges_at(fillet5, [
    (-20.15, 14.25, 14),
    (-23.15, 14.25, 14),
    (-23.5, 14.85, 53.9),
    (-20.15, 12.35, 53.9),
]))
fillet6.Radius = 1

# Sketch on XZ plane
sketch20 = doc.addObject("Sketcher::SketchObject", "Sketch019")
body.addObject(sketch20)
sketch20.AttachmentSupport = (doc.XZ_Plane, [""])
sketch20.MapMode = "FlatFace"
sketch20.AttachmentOffset = App.Placement(App.Vector(0, 0, -3.5), App.Rotation())
sketch20.addGeometry([
    Part.LineSegment(App.Vector(-11, -4, 0), App.Vector(-11, -4.5, 0)),  # 0
    Part.LineSegment(App.Vector(-11, -4.5, 0), App.Vector(-2.5, -4.5, 0)),  # 1
    Part.LineSegment(App.Vector(-2.5, -4.5, 0), App.Vector(-2.8, -4, 0)),  # 2
    Part.LineSegment(App.Vector(-2.8, -4, 0), App.Vector(-11, -4, 0)),  # 3
    Part.LineSegment(App.Vector(11, -4.5, 0), App.Vector(11, -4, 0)),  # 4
    Part.LineSegment(App.Vector(11, -4, 0), App.Vector(2.8, -4, 0)),  # 5
    Part.LineSegment(App.Vector(2.8, -4, 0), App.Vector(2.5, -4.5, 0)),  # 6
    Part.LineSegment(App.Vector(2.5, -4.5, 0), App.Vector(11, -4.5, 0)),  # 7
], False)
sketch20.addConstraint([
    Sketcher.Constraint("Coincident", 0, 2, 1, 1),
    Sketcher.Constraint("Coincident", 1, 2, 2, 1),
    Sketcher.Constraint("Coincident", 2, 2, 3, 1),
    Sketcher.Constraint("Coincident", 3, 2, 0, 1),
    Sketcher.Constraint("Coincident", 4, 2, 5, 1),
    Sketcher.Constraint("Coincident", 5, 2, 6, 1),
    Sketcher.Constraint("Coincident", 6, 2, 7, 1),
    Sketcher.Constraint("Coincident", 7, 2, 4, 1),
    Sketcher.Constraint("Vertical", 0),
    Sketcher.Constraint("Horizontal", 1),
    Sketcher.Constraint("Horizontal", 3),
    Sketcher.Constraint("Vertical", 4),
    Sketcher.Constraint("Horizontal", 5),
    Sketcher.Constraint("Horizontal", 7),
    Sketcher.Constraint("Symmetric", 3, 2, 4, 2, -2),
    Sketcher.Constraint("Symmetric", 1, 2, 6, 2, -2),
    Sketcher.Constraint("Equal", 3, 5),
    Sketcher.Constraint("DistanceX", 1, 1, 1, 2, 8.5),
    Sketcher.Constraint("DistanceY", 0, 2, 0, 1, 0.5),
    Sketcher.Constraint("DistanceX", 0, 2, -1, 1, 11.0),
    Sketcher.Constraint("DistanceY", 2, 2, -1, 1, 4.0),
    Sketcher.Constraint("DistanceX", 3, 2, 3, 1, 8.25),
])
pocket9 = doc.addObject("PartDesign::Pocket", "Pocket008")
body.addObject(pocket9)
pocket9.Profile = sketch20
pocket9.Length = 68.5

doc.recompute()
